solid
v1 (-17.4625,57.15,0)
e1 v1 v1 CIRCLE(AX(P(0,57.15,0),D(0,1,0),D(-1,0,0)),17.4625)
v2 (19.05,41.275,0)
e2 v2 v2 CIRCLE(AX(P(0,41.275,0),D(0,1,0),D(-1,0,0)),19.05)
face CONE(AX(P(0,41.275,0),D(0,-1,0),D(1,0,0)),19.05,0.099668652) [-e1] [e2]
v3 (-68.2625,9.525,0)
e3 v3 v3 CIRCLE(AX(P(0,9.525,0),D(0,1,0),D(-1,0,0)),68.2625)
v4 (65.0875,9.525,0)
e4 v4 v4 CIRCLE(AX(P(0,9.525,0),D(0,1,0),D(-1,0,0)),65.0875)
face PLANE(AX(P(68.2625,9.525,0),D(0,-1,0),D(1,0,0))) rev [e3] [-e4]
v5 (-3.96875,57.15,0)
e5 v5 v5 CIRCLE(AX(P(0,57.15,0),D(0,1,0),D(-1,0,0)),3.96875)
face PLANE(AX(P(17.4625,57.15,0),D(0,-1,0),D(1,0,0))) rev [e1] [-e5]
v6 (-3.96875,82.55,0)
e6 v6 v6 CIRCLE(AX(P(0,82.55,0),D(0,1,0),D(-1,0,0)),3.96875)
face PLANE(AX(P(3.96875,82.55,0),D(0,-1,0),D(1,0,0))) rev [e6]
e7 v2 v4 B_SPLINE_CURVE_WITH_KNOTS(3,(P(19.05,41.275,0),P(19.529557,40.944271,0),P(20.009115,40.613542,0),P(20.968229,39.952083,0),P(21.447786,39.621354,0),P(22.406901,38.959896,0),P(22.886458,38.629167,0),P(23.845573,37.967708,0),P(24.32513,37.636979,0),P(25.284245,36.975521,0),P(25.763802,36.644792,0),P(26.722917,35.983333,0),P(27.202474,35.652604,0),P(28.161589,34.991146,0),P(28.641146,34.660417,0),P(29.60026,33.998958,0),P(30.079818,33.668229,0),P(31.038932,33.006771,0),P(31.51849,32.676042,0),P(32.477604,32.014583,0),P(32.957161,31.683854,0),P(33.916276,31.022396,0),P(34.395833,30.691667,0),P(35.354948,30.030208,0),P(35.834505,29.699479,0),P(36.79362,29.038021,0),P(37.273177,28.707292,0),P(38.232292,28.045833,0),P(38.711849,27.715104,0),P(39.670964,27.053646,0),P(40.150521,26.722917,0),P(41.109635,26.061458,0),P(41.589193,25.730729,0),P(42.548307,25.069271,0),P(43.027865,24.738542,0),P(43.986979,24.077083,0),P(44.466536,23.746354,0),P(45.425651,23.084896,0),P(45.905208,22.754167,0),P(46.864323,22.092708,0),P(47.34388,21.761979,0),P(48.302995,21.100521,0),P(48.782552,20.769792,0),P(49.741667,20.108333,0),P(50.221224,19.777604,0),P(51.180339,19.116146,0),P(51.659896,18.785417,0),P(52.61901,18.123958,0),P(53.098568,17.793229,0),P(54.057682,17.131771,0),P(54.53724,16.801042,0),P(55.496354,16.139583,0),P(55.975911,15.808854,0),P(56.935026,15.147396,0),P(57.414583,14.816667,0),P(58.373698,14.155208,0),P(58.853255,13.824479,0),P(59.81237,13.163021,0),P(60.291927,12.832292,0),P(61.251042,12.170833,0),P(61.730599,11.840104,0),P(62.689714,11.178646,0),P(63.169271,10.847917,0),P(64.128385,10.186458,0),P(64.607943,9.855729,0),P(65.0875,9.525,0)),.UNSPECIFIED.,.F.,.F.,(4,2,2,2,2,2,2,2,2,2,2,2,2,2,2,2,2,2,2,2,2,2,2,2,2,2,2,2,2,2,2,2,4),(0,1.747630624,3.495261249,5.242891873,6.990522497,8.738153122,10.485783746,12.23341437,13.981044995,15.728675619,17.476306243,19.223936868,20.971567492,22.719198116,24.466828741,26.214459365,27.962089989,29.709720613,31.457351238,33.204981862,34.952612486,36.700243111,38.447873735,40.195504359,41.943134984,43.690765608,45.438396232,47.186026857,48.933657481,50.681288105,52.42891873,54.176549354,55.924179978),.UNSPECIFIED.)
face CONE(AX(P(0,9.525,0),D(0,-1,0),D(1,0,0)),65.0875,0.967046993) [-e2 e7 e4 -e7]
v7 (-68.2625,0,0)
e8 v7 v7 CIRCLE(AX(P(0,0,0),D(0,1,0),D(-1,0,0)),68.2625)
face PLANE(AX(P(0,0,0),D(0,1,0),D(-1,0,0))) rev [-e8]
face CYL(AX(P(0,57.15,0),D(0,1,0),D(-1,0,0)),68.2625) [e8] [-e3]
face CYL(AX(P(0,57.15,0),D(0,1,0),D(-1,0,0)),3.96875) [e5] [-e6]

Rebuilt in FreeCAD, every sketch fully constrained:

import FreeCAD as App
import Part
import Sketcher
Q = App.Units.Quantity

doc = App.newDocument("Part")
body = doc.addObject("PartDesign::Body", "Body")

# Sketch on XY plane
sketch1 = body.newObject("Sketcher::SketchObject", "Sketch")
sketch1.AttachmentSupport = (doc.getObject("XY_Plane"), [""])
sketch1.MapMode = "FlatFace"
sketch1.addGeometry(Part.LineSegment(App.Vector(0, 0, 0), App.Vector(68.2625, 0, 0)), False)
sketch1.addGeometry(Part.LineSegment(App.Vector(68.2625, 0, 0), App.Vector(68.2625, 9.525, 0)), False)
sketch1.addGeometry(Part.LineSegment(App.Vector(68.2625, 9.525, 0), App.Vector(65.0875, 9.525, 0)), False)
sketch1.addGeometry(Part.LineSegment(App.Vector(65.0875, 9.525, 0), App.Vector(19.05, 41.275, 0)), False)
sketch1.addGeometry(Part.LineSegment(App.Vector(19.05, 41.275, 0), App.Vector(17.4625, 57.15, 0)), False)
sketch1.addGeometry(Part.LineSegment(App.Vector(17.4625, 57.15, 0), App.Vector(3.96875, 57.15, 0)), False)
sketch1.addGeometry(Part.LineSegment(App.Vector(3.96875, 57.15, 0), App.Vector(3.96875, 82.55, 0)), False)
sketch1.addGeometry(Part.LineSegment(App.Vector(3.96875, 82.55, 0), App.Vector(0, 82.55, 0)), False)
sketch1.addGeometry(Part.LineSegment(App.Vector(0, 82.55, 0), App.Vector(0, 0, 0)), False)
sketch1.addConstraint(Sketcher.Constraint("Coincident", 0, 2, 1, 1))
sketch1.addConstraint(Sketcher.Constraint("Coincident", 1, 2, 2, 1))
sketch1.addConstraint(Sketcher.Constraint("Coincident", 2, 2, 3, 1))
sketch1.addConstraint(Sketcher.Constraint("Coincident", 3, 2, 4, 1))
sketch1.addConstraint(Sketcher.Constraint("Coincident", 4, 2, 5, 1))
sketch1.addConstraint(Sketcher.Constraint("Coincident", 5, 2, 6, 1))
sketch1.addConstraint(Sketcher.Constraint("Coincident", 6, 2, 7, 1))
sketch1.addConstraint(Sketcher.Constraint("Coincident", 7, 2, 8, 1))
sketch1.addConstraint(Sketcher.Constraint("Coincident", 8, 2, 0, 1))
sketch1.addConstraint(Sketcher.Constraint("Horizontal", 0))
sketch1.addConstraint(Sketcher.Constraint("Vertical", 1))
sketch1.addConstraint(Sketcher.Constraint("Horizontal", 2))
sketch1.addConstraint(Sketcher.Constraint("Horizontal", 5))
sketch1.addConstraint(Sketcher.Constraint("Vertical", 6))
sketch1.addConstraint(Sketcher.Constraint("Horizontal", 7))
sketch1.addConstraint(Sketcher.Constraint("Vertical", 8))
sketch1.addConstraint(Sketcher.Constraint("Coincident", 8, 2, -1, 1))
sketch1.addConstraint(Sketcher.Constraint("DistanceY", 6, 1, 6, 2, Q("1 in")))
sketch1.addConstraint(Sketcher.Constraint("DistanceX", 4, 2, 1, 2, Q("2 in")))
sketch1.addConstraint(Sketcher.Constraint("DistanceY", 8, 2, 8, 1, Q("3.25 in")))
sketch1.addConstraint(Sketcher.Constraint("DistanceX", 0, 1, 0, 2, Q("2.6875 in")))
sketch1.addConstraint(Sketcher.Constraint("DistanceX", 2, 2, 2, 1, Q("0.125 in")))
sketch1.addConstraint(Sketcher.Constraint("DistanceX", 5, 2, 5, 1, Q("0.53125 in")))
sketch1.addConstraint(Sketcher.Constraint("DistanceY", 1, 1, 1, 2, Q("0.375 in")))
sketch1.addConstraint(Sketcher.Constraint("DistanceX", -1, 1, 3, 2, Q("0.75 in")))
sketch1.addConstraint(Sketcher.Constraint("DistanceY", 2, 2, 3, 2, Q("1.25 in")))
revolution = body.newObject("PartDesign::Revolution", "Revolution")
revolution.Profile = sketch1
revolution.ReferenceAxis = (sketch1, ["V_Axis"])
revolution.Angle = 360

doc.recompute()
